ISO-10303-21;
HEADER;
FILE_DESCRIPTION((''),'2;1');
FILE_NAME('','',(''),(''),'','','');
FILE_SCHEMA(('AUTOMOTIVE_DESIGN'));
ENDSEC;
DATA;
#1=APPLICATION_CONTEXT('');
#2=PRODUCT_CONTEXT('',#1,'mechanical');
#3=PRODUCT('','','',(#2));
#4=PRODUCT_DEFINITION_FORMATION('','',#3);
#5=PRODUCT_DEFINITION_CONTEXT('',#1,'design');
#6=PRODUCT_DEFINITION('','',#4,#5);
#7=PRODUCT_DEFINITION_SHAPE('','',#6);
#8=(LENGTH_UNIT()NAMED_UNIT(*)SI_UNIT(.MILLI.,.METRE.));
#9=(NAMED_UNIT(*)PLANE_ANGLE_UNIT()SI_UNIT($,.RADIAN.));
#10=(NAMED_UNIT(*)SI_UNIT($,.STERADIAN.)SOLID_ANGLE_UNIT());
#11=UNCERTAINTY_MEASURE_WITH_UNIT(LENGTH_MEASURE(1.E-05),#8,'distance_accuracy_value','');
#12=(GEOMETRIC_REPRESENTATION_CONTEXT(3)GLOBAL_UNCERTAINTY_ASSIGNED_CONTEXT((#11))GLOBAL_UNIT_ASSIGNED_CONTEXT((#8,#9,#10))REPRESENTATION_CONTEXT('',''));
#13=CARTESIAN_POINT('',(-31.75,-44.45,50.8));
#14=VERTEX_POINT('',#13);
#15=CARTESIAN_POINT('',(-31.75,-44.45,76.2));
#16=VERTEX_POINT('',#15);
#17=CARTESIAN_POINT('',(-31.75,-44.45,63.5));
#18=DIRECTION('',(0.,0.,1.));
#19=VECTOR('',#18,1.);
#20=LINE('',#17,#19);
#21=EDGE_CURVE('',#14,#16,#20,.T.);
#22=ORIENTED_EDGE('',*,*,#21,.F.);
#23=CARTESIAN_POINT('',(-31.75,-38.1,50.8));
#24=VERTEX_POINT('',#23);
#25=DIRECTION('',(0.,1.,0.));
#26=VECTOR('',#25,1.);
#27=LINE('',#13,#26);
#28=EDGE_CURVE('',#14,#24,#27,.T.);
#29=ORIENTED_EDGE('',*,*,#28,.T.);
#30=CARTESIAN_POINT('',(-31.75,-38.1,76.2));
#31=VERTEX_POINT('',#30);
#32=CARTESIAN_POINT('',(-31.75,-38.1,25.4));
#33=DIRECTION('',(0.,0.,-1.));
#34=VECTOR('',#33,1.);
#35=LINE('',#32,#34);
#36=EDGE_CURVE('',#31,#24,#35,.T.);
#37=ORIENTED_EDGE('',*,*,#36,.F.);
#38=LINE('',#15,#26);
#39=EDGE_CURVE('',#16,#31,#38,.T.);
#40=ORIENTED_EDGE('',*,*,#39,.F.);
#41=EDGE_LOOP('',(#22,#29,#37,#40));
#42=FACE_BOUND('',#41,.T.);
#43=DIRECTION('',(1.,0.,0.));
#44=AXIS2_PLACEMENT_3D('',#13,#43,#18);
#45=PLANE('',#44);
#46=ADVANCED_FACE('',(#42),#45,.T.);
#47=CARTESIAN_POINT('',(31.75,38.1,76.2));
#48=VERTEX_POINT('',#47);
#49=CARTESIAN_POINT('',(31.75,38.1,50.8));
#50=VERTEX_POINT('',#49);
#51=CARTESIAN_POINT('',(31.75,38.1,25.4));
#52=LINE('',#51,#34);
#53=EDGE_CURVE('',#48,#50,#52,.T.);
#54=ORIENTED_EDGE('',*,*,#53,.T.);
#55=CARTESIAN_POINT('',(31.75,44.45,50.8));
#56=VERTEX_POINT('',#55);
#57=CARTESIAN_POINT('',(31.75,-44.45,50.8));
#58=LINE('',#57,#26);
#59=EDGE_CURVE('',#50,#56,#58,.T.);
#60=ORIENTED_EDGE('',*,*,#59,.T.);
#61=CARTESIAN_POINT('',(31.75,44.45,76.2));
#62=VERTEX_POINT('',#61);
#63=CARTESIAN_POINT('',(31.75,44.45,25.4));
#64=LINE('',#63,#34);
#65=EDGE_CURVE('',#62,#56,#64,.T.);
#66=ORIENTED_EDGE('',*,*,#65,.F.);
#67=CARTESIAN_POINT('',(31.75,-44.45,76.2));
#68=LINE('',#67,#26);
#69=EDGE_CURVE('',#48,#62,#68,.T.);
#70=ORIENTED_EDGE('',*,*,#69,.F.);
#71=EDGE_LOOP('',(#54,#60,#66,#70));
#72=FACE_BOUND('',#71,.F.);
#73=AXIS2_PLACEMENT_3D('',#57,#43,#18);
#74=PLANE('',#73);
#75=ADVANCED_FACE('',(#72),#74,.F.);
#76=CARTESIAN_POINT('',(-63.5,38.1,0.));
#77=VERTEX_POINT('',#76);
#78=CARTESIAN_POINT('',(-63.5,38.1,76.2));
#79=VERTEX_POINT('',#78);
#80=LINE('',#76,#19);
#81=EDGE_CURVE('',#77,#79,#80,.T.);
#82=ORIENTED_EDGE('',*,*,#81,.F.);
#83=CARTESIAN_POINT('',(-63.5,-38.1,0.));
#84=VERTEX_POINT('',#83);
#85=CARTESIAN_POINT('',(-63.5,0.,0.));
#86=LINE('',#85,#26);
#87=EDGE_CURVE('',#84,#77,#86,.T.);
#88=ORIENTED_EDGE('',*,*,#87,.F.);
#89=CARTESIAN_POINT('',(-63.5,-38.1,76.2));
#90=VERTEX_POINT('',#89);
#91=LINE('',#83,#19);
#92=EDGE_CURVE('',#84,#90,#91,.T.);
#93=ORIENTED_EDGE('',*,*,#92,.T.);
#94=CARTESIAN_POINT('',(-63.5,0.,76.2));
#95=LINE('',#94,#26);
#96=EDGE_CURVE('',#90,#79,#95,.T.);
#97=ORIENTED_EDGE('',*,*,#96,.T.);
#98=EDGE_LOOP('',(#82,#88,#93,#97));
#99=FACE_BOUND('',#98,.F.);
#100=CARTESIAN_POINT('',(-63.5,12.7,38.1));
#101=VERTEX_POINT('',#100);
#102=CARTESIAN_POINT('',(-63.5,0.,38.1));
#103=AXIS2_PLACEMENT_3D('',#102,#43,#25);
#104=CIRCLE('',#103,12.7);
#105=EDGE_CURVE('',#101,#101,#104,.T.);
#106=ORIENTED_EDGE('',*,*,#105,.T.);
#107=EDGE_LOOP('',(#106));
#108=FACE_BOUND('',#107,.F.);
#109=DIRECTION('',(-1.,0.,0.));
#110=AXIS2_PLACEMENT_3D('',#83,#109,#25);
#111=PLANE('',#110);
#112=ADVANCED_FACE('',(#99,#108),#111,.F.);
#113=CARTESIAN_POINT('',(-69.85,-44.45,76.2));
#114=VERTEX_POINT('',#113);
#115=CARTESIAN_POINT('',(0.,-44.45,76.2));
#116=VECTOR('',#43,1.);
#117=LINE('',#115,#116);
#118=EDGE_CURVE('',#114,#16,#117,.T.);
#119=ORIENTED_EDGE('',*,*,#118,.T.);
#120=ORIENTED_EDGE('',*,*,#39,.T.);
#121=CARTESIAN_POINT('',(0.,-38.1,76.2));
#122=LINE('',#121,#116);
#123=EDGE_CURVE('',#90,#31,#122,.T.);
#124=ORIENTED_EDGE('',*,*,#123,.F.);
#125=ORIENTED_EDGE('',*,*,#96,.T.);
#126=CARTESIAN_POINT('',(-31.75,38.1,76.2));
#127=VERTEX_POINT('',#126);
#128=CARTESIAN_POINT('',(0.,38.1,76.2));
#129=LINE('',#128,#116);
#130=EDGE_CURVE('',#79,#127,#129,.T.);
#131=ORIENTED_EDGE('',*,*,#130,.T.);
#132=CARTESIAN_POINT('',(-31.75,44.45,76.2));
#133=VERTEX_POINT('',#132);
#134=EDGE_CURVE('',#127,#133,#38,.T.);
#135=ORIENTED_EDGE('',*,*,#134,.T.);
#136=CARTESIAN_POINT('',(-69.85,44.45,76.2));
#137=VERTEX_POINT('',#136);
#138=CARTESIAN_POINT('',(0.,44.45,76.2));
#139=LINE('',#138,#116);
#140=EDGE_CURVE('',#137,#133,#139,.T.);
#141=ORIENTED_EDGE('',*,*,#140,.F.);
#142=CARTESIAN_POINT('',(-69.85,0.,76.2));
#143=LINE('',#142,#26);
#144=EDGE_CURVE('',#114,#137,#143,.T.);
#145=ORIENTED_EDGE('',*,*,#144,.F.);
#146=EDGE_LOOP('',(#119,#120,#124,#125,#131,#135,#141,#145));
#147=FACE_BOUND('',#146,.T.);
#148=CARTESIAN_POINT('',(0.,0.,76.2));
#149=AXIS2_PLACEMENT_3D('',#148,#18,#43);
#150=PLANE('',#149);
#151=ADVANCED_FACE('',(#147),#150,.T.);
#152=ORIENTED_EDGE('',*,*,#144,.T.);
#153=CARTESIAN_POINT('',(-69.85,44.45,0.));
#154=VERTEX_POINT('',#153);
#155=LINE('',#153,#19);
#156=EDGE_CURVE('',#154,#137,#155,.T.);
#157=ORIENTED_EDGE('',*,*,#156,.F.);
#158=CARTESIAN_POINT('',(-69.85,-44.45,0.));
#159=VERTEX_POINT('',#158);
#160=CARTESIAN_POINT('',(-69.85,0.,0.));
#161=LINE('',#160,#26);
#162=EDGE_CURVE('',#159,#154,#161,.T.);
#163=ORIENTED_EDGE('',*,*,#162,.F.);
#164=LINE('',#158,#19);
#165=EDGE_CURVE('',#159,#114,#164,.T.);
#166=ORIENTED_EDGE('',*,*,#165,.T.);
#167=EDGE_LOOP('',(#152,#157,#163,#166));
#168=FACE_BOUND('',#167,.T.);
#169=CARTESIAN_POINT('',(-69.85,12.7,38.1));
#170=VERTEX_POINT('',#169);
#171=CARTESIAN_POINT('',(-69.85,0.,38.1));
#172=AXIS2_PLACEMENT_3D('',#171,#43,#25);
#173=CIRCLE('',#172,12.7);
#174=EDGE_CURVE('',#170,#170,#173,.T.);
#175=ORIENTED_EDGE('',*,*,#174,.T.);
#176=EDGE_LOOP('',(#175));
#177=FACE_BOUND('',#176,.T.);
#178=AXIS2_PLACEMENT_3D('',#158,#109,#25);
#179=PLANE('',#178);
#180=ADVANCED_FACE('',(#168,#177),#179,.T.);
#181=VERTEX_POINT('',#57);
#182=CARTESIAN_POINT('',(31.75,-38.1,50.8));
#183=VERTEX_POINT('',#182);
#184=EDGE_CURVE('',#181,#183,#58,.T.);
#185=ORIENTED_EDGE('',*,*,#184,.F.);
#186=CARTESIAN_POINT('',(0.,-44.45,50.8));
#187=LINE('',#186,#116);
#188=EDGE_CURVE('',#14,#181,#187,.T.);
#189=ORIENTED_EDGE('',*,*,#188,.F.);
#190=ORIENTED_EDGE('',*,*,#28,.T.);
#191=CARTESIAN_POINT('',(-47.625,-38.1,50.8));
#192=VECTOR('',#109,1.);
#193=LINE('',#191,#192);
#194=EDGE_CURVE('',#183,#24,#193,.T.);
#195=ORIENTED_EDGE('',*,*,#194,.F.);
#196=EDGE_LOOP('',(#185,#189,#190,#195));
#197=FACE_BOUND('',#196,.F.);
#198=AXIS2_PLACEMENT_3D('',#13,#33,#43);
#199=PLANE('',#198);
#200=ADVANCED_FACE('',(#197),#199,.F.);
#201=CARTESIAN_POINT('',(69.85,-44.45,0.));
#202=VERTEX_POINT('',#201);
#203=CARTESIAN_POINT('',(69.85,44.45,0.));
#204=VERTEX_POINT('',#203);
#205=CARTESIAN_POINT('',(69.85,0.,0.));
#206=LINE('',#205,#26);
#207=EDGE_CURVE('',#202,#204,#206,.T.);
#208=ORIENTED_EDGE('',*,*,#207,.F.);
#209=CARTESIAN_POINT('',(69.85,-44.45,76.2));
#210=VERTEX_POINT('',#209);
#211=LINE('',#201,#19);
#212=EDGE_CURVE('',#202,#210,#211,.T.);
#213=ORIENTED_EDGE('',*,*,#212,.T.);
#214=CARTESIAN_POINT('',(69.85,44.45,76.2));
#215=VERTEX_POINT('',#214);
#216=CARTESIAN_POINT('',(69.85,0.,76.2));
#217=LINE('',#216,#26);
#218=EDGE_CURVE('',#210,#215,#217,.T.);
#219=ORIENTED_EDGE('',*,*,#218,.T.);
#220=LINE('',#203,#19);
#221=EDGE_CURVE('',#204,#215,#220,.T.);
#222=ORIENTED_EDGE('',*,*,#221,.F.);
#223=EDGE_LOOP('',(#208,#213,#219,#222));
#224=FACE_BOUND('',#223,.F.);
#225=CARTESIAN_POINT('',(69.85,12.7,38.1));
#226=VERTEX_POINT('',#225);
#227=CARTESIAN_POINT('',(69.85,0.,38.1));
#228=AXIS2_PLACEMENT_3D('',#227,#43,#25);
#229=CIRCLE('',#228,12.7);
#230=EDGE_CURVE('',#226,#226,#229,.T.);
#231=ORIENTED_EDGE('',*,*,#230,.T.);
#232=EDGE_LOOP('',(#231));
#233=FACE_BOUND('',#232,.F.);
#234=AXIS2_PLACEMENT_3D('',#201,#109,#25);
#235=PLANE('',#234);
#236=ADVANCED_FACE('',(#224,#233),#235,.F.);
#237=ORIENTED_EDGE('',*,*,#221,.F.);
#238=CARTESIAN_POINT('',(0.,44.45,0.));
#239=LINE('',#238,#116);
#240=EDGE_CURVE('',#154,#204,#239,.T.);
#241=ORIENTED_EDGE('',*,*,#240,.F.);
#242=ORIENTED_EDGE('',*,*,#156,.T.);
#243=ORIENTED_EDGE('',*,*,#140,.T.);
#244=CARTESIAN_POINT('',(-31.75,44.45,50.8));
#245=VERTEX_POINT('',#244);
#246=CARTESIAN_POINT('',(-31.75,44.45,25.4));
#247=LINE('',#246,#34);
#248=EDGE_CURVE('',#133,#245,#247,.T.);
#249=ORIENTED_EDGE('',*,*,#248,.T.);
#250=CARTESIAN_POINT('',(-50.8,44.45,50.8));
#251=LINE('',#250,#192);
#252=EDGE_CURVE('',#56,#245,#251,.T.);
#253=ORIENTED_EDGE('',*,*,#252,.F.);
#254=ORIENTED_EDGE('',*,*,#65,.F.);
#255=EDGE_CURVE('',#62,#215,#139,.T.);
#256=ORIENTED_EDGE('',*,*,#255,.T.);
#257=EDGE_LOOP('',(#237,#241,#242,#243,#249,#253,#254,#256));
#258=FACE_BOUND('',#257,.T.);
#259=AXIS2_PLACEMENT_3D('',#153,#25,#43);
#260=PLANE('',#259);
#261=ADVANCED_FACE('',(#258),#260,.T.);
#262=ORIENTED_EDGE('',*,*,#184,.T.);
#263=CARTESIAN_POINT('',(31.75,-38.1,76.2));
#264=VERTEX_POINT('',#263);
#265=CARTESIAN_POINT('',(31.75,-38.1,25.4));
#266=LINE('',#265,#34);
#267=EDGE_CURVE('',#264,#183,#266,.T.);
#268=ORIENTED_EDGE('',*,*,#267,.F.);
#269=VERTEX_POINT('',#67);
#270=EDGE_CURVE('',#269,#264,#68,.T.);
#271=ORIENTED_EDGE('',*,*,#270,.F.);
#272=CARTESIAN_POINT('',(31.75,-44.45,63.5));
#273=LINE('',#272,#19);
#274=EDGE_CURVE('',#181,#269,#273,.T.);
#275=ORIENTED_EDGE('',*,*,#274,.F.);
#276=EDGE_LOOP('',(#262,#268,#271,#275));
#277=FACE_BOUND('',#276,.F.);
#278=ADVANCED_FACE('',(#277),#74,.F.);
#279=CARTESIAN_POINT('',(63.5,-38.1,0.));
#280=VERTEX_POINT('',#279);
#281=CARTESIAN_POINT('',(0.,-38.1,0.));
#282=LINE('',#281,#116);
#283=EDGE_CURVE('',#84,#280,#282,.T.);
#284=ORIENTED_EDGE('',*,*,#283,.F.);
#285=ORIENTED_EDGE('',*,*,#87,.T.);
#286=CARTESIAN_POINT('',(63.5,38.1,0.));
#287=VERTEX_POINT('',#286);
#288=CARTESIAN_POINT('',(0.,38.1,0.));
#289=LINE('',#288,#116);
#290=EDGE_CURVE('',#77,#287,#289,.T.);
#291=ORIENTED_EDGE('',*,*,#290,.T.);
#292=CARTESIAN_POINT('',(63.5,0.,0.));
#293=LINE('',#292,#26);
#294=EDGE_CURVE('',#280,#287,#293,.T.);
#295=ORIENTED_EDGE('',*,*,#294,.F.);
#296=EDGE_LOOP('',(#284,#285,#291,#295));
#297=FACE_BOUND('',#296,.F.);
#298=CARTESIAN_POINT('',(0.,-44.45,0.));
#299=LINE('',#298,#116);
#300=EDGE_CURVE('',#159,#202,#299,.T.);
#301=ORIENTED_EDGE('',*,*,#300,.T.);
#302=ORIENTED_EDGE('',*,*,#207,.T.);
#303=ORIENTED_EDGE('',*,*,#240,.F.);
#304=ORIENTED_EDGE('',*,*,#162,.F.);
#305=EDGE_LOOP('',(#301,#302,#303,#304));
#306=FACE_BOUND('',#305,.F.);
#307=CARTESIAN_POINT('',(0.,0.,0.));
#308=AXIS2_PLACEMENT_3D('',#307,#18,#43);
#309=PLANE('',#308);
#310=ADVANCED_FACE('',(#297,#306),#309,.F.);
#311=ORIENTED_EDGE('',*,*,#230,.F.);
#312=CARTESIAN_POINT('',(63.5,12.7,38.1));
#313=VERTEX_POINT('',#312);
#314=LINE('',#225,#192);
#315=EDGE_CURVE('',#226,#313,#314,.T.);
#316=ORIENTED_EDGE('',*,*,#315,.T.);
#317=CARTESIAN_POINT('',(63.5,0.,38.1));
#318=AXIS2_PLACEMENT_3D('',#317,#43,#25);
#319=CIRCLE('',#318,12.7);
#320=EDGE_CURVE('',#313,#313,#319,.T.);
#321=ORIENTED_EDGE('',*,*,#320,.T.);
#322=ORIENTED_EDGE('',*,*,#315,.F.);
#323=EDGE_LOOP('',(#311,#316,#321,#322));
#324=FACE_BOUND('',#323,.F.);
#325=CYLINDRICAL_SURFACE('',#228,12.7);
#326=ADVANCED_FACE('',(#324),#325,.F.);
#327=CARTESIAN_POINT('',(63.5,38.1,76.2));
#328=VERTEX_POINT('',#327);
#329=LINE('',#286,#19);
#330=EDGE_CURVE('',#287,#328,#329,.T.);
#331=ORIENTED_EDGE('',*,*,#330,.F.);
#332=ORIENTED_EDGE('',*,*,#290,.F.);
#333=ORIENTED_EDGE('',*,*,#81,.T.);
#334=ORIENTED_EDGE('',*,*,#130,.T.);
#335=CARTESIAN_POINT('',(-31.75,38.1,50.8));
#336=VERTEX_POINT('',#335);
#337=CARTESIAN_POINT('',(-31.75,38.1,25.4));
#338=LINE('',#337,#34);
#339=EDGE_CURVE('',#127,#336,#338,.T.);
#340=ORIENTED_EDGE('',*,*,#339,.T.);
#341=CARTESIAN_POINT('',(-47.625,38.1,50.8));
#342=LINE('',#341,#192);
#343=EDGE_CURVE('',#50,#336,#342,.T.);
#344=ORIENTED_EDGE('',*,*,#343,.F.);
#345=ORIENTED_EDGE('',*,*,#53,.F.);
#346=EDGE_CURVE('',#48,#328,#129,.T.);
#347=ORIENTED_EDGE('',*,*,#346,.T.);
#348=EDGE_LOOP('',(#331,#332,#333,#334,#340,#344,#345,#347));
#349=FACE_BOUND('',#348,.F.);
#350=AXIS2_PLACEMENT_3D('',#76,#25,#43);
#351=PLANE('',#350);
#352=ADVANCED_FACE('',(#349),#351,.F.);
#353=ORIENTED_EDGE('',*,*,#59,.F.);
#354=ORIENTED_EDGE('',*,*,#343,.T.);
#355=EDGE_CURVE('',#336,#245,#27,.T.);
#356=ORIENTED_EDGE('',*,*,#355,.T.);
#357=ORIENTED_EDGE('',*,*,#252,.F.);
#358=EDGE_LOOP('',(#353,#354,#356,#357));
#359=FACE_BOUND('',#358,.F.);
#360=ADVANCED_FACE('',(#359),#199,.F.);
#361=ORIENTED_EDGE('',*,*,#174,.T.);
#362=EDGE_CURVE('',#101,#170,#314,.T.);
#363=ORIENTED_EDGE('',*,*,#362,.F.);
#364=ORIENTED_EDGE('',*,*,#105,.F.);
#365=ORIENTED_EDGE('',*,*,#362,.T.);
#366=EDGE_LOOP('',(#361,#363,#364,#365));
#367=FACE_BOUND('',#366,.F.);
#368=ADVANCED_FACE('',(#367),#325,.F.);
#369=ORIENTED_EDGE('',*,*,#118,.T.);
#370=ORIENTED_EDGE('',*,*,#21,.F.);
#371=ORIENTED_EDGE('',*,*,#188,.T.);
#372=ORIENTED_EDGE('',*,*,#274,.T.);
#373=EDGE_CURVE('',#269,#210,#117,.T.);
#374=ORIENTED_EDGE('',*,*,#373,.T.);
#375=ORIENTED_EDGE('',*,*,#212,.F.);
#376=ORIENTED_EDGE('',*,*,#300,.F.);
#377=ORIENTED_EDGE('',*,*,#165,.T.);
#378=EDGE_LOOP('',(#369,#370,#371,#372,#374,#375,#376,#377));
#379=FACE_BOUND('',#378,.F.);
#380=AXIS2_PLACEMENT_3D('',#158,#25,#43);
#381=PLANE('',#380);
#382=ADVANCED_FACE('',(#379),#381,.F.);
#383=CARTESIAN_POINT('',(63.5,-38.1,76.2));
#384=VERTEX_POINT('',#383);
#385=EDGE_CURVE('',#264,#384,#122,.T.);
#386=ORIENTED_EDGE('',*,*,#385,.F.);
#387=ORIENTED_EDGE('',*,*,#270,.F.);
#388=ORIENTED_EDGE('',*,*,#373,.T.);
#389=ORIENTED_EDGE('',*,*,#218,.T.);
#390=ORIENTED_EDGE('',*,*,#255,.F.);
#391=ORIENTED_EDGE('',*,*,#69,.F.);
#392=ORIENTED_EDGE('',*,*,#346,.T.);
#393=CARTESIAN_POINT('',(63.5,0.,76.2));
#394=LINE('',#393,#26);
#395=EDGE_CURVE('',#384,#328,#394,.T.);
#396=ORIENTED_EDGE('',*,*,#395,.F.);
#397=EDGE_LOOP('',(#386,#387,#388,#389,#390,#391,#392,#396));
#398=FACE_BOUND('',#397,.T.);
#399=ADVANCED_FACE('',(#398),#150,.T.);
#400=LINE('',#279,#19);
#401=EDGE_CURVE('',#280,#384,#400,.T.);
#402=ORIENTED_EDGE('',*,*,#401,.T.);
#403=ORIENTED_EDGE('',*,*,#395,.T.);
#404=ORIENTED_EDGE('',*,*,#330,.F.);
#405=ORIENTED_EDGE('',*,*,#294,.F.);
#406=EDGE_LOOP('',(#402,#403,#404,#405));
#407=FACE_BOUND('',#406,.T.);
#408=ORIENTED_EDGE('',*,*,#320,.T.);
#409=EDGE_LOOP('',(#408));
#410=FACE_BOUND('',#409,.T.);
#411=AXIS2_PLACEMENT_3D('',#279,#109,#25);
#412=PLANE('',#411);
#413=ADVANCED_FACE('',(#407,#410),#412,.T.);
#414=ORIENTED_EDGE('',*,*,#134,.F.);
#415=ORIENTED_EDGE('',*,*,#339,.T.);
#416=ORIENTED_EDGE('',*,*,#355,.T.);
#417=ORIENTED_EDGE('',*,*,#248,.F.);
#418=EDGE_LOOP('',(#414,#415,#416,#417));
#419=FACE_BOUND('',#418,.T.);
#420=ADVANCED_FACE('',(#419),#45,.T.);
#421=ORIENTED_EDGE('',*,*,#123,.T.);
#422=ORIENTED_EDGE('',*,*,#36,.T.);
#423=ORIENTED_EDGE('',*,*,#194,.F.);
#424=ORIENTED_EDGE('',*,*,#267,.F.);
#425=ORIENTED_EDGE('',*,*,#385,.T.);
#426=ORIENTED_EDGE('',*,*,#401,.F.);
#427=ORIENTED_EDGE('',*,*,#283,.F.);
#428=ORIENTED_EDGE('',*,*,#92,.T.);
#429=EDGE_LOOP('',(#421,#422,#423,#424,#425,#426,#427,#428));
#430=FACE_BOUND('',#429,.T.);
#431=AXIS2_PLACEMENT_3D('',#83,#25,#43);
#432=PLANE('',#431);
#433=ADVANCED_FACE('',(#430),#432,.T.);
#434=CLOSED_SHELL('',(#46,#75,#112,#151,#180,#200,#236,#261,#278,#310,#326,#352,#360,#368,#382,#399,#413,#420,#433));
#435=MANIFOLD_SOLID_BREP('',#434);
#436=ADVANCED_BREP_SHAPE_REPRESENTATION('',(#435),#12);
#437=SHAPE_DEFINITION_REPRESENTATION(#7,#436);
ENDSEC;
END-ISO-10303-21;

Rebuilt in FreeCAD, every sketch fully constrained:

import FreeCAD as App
import Part
import Sketcher

V = App.Vector
Q = App.Units.Quantity

doc = App.newDocument("Part")
body = doc.addObject("PartDesign::Body", "Body")

# Sketch on XY plane
sketch1 = body.newObject("Sketcher::SketchObject", "Sketch")
sketch1.AttachmentSupport = (doc.getObject("XY_Plane"), [""])
sketch1.MapMode = "FlatFace"
sketch1.addGeometry(Part.LineSegment(V(-70, 44, 0), V(-70, -44, 0)), False)
sketch1.addGeometry(Part.LineSegment(V(-70, -44, 0), V(70, -44, 0)), False)
sketch1.addGeometry(Part.LineSegment(V(70, -44, 0), V(70, 44, 0)), False)
sketch1.addGeometry(Part.LineSegment(V(70, 44, 0), V(-70, 44, 0)), False)
sketch1.addGeometry(Part.LineSegment(V(64, -38, 0), V(-64, -38, 0)), False)
sketch1.addGeometry(Part.LineSegment(V(-64, -38, 0), V(-64, 38, 0)), False)
sketch1.addGeometry(Part.LineSegment(V(-64, 38, 0), V(64, 38, 0)), False)
sketch1.addGeometry(Part.LineSegment(V(64, 38, 0), V(64, -38, 0)), False)
sketch1.addConstraint(Sketcher.Constraint("Coincident", 0, 2, 1, 1))
sketch1.addConstraint(Sketcher.Constraint("Coincident", 1, 2, 2, 1))
sketch1.addConstraint(Sketcher.Constraint("Coincident", 2, 2, 3, 1))
sketch1.addConstraint(Sketcher.Constraint("Coincident", 3, 2, 0, 1))
sketch1.addConstraint(Sketcher.Constraint("Coincident", 4, 2, 5, 1))
sketch1.addConstraint(Sketcher.Constraint("Coincident", 5, 2, 6, 1))
sketch1.addConstraint(Sketcher.Constraint("Coincident", 6, 2, 7, 1))
sketch1.addConstraint(Sketcher.Constraint("Coincident", 7, 2, 4, 1))
sketch1.addConstraint(Sketcher.Constraint("Vertical", 0))
sketch1.addConstraint(Sketcher.Constraint("Horizontal", 1))
sketch1.addConstraint(Sketcher.Constraint("Vertical", 2))
sketch1.addConstraint(Sketcher.Constraint("Horizontal", 3))
sketch1.addConstraint(Sketcher.Constraint("Horizontal", 4))
sketch1.addConstraint(Sketcher.Constraint("Vertical", 5))
sketch1.addConstraint(Sketcher.Constraint("Horizontal", 6))
sketch1.addConstraint(Sketcher.Constraint("Vertical", 7))
sketch1.addConstraint(Sketcher.Constraint("Symmetric", 0, 2, 2, 2, -1, 1))
sketch1.addConstraint(Sketcher.Constraint("Symmetric", 4, 2, 6, 2, -1, 1))
sketch1.addConstraint(Sketcher.Constraint("DistanceX", 4, 2, 4, 1, Q("5 in")))
sketch1.addConstraint(Sketcher.Constraint("DistanceY", 5, 1, 5, 2, Q("3 in")))
sketch1.addConstraint(Sketcher.Constraint("DistanceX", 1, 1, 1, 2, Q("5.5 in")))
sketch1.addConstraint(Sketcher.Constraint("DistanceY", 0, 2, 0, 1, Q("3.5 in")))
pad1 = body.newObject("PartDesign::Pad", "Pad")
pad1.Profile = sketch1
pad1.Length = Q("3 in")

# Sketch on XZ plane
sketch2 = body.newObject("Sketcher::SketchObject", "Sketch001")
sketch2.AttachmentSupport = (doc.getObject("XZ_Plane"), [""])
sketch2.MapMode = "FlatFace"
sketch2.AttachmentOffset = App.Placement(V(0, 0, 1.75 * 25.4), App.Rotation())
sketch2.addGeometry(Part.LineSegment(V(-32, 76, 0), V(-32, 51, 0)), False)
sketch2.addGeometry(Part.LineSegment(V(-32, 51, 0), V(32, 51, 0)), False)
sketch2.addGeometry(Part.LineSegment(V(32, 51, 0), V(32, 76, 0)), False)
sketch2.addGeometry(Part.LineSegment(V(32, 76, 0), V(-32, 76, 0)), False)
sketch2.addConstraint(Sketcher.Constraint("Coincident", 0, 2, 1, 1))
sketch2.addConstraint(Sketcher.Constraint("Coincident", 1, 2, 2, 1))
sketch2.addConstraint(Sketcher.Constraint("Coincident", 2, 2, 3, 1))
sketch2.addConstraint(Sketcher.Constraint("Coincident", 3, 2, 0, 1))
sketch2.addConstraint(Sketcher.Constraint("Vertical", 0))
sketch2.addConstraint(Sketcher.Constraint("Horizontal", 1))
sketch2.addConstraint(Sketcher.Constraint("Vertical", 2))
sketch2.addConstraint(Sketcher.Constraint("Horizontal", 3))
sketch2.addConstraint(Sketcher.Constraint("DistanceY", 0, 2, 0, 1, Q("1 in")))
sketch2.addConstraint(Sketcher.Constraint("DistanceX", 1, 1, 1, 2, Q("2.5 in")))
sketch2.addConstraint(Sketcher.Constraint("DistanceY", -1, 1, 0, 2, Q("2 in")))
sketch2.addConstraint(Sketcher.Constraint("DistanceX", 0, 2, -1, 1, Q("1.25 in")))
pocket1 = body.newObject("PartDesign::Pocket", "Pocket")
pocket1.Profile = sketch2
pocket1.Length = Q("6.55 in")

# Sketch on YZ plane
sketch3 = body.newObject("Sketcher::SketchObject", "Sketch002")
sketch3.AttachmentSupport = (doc.getObject("YZ_Plane"), [""])
sketch3.MapMode = "FlatFace"
sketch3.AttachmentOffset = App.Placement(V(0, 0, 2.75 * 25.4), App.Rotation())
sketch3.addGeometry(Part.Circle(V(0, 38, 0), V(0, 0, 1), 13), False)
sketch3.addConstraint(Sketcher.Constraint("PointOnObject", 0, 3, -2))
sketch3.addConstraint(Sketcher.Constraint("Diameter", 0, Q("1 in")))
sketch3.addConstraint(Sketcher.Constraint("DistanceY", -1, 1, 0, 3, Q("1.5 in")))
pocket2 = body.newObject("PartDesign::Pocket", "Pocket001")
pocket2.Profile = sketch3
pocket2.Length = Q("8.4 in")

doc.recompute()
